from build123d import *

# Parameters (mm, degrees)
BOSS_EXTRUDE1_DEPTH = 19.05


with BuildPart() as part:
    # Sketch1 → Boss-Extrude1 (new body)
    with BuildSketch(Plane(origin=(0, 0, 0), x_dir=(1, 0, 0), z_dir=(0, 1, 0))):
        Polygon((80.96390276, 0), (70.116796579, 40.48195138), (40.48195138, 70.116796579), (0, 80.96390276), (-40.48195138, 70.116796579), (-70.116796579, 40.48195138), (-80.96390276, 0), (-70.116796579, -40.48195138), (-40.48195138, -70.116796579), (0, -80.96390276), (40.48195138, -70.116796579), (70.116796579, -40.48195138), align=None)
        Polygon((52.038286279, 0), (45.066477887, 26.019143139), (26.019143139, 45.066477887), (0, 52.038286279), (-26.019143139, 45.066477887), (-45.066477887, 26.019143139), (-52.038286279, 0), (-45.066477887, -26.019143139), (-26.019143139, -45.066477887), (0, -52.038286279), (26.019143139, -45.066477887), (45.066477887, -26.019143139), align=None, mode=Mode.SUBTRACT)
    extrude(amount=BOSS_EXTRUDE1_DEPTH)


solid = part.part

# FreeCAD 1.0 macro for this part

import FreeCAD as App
import Part
import Sketcher
from FreeCAD import Vector
Q = App.Units.Quantity

doc = App.newDocument("Part")
body = doc.addObject("PartDesign::Body", "Body")

# Sketch on XZ plane
sketch1 = body.newObject("Sketcher::SketchObject", "Sketch")
sketch1.AttachmentSupport = (doc.getObject("XZ_Plane"), [""])
sketch1.MapMode = "FlatFace"
sketch1.addGeometry(Part.LineSegment(Vector(81, 0, 0), Vector(70, -40, 0)), False)
sketch1.addGeometry(Part.LineSegment(Vector(70, -40, 0), Vector(40, -70, 0)), False)
sketch1.addGeometry(Part.LineSegment(Vector(40, -70, 0), Vector(0, -81, 0)), False)
sketch1.addGeometry(Part.LineSegment(Vector(0, -81, 0), Vector(-40, -70, 0)), False)
sketch1.addGeometry(Part.LineSegment(Vector(-40, -70, 0), Vector(-70, -40, 0)), False)
sketch1.addGeometry(Part.LineSegment(Vector(-70, -40, 0), Vector(-81, 0, 0)), False)
sketch1.addGeometry(Part.LineSegment(Vector(-81, 0, 0), Vector(-70, 40, 0)), False)
sketch1.addGeometry(Part.LineSegment(Vector(-70, 40, 0), Vector(-40, 70, 0)), False)
sketch1.addGeometry(Part.LineSegment(Vector(-40, 70, 0), Vector(0, 81, 0)), False)
sketch1.addGeometry(Part.LineSegment(Vector(0, 81, 0), Vector(40, 70, 0)), False)
sketch1.addGeometry(Part.LineSegment(Vector(40, 70, 0), Vector(70, 40, 0)), False)
sketch1.addGeometry(Part.LineSegment(Vector(70, 40, 0), Vector(81, 0, 0)), False)
sketch1.addGeometry(Part.LineSegment(Vector(45, -26, 0), Vector(52, 0, 0)), False)
sketch1.addGeometry(Part.LineSegment(Vector(52, 0, 0), Vector(45, 26, 0)), False)
sketch1.addGeometry(Part.LineSegment(Vector(45, 26, 0), Vector(26, 45, 0)), False)
sketch1.addGeometry(Part.LineSegment(Vector(26, 45, 0), Vector(0, 52, 0)), False)
sketch1.addGeometry(Part.LineSegment(Vector(0, 52, 0), Vector(-26, 45, 0)), False)
sketch1.addGeometry(Part.LineSegment(Vector(-26, 45, 0), Vector(-45, 26, 0)), False)
sketch1.addGeometry(Part.LineSegment(Vector(-45, 26, 0), Vector(-52, 0, 0)), False)
sketch1.addGeometry(Part.LineSegment(Vector(-52, 0, 0), Vector(-45, -26, 0)), False)
sketch1.addGeometry(Part.LineSegment(Vector(-45, -26, 0), Vector(-26, -45, 0)), False)
sketch1.addGeometry(Part.LineSegment(Vector(-26, -45, 0), Vector(0, -52, 0)), False)
sketch1.addGeometry(Part.LineSegment(Vector(0, -52, 0), Vector(26, -45, 0)), False)
sketch1.addGeometry(Part.LineSegment(Vector(26, -45, 0), Vector(45, -26, 0)), False)
sketch1.addConstraint(Sketcher.Constraint("Coincident", 0, 2, 1, 1))
sketch1.addConstraint(Sketcher.Constraint("Coincident", 1, 2, 2, 1))
sketch1.addConstraint(Sketcher.Constraint("Coincident", 2, 2, 3, 1))
sketch1.addConstraint(Sketcher.Constraint("Coincident", 3, 2, 4, 1))
sketch1.addConstraint(Sketcher.Constraint("Coincident", 4, 2, 5, 1))
sketch1.addConstraint(Sketcher.Constraint("Coincident", 5, 2, 6, 1))
sketch1.addConstraint(Sketcher.Constraint("Coincident", 6, 2, 7, 1))
sketch1.addConstraint(Sketcher.Constraint("Coincident", 7, 2, 8, 1))
sketch1.addConstraint(Sketcher.Constraint("Coincident", 8, 2, 9, 1))
sketch1.addConstraint(Sketcher.Constraint("Coincident", 9, 2, 10, 1))
sketch1.addConstraint(Sketcher.Constraint("Coincident", 10, 2, 11, 1))
sketch1.addConstraint(Sketcher.Constraint("Coincident", 11, 2, 0, 1))
sketch1.addConstraint(Sketcher.Constraint("Coincident", 12, 2, 13, 1))
sketch1.addConstraint(Sketcher.Constraint("Coincident", 13, 2, 14, 1))
sketch1.addConstraint(Sketcher.Constraint("Coincident", 14, 2, 15, 1))
sketch1.addConstraint(Sketcher.Constraint("Coincident", 15, 2, 16, 1))
sketch1.addConstraint(Sketcher.Constraint("Coincident", 16, 2, 17, 1))
sketch1.addConstraint(Sketcher.Constraint("Coincident", 17, 2, 18, 1))
sketch1.addConstraint(Sketcher.Constraint("Coincident", 18, 2, 19, 1))
sketch1.addConstraint(Sketcher.Constraint("Coincident", 19, 2, 20, 1))
sketch1.addConstraint(Sketcher.Constraint("Coincident", 20, 2, 21, 1))
sketch1.addConstraint(Sketcher.Constraint("Coincident", 21, 2, 22, 1))
sketch1.addConstraint(Sketcher.Constraint("Coincident", 22, 2, 23, 1))
sketch1.addConstraint(Sketcher.Constraint("Coincident", 23, 2, 12, 1))
sketch1.addConstraint(Sketcher.Constraint("Symmetric", 0, 2, 6, 2, -1, 1))
sketch1.addConstraint(Sketcher.Constraint("Symmetric", 1, 2, 7, 2, -1, 1))
sketch1.addConstraint(Sketcher.Constraint("Symmetric", 2, 2, 8, 2, -1, 1))
sketch1.addConstraint(Sketcher.Constraint("Symmetric", 3, 2, 9, 2, -1, 1))
sketch1.addConstraint(Sketcher.Constraint("Symmetric", 4, 2, 10, 2, -1, 1))
sketch1.addConstraint(Sketcher.Constraint("Symmetric", 5, 2, 11, 2, -1, 1))
sketch1.addConstraint(Sketcher.Constraint("Symmetric", 12, 2, 18, 2, -1, 1))
sketch1.addConstraint(Sketcher.Constraint("Symmetric", 13, 2, 19, 2, -1, 1))
sketch1.addConstraint(Sketcher.Constraint("Symmetric", 14, 2, 20, 2, -1, 1))
sketch1.addConstraint(Sketcher.Constraint("Symmetric", 15, 2, 21, 2, -1, 1))
sketch1.addConstraint(Sketcher.Constraint("Symmetric", 16, 2, 22, 2, -1, 1))
sketch1.addConstraint(Sketcher.Constraint("Symmetric", 17, 2, 23, 2, -1, 1))
sketch1.addConstraint(Sketcher.Constraint("Symmetric", 1, 2, 3, 2, -2))
sketch1.addConstraint(Sketcher.Constraint("Symmetric", 0, 2, 4, 2, -2))
sketch1.addConstraint(Sketcher.Constraint("Symmetric", 14, 2, 16, 2, -2))
sketch1.addConstraint(Sketcher.Constraint("Symmetric", 13, 2, 17, 2, -2))
sketch1.addConstraint(Sketcher.Constraint("PointOnObject", 2, 2, -2))
sketch1.addConstraint(Sketcher.Constraint("PointOnObject", 5, 2, -1))
sketch1.addConstraint(Sketcher.Constraint("PointOnObject", 12, 2, -1))
sketch1.addConstraint(Sketcher.Constraint("PointOnObject", 15, 2, -2))
sketch1.addConstraint(Sketcher.Constraint("Perpendicular", 0, 3))
sketch1.addConstraint(Sketcher.Constraint("Perpendicular", 1, 4))
sketch1.addConstraint(Sketcher.Constraint("Perpendicular", 9, 12))
sketch1.addConstraint(Sketcher.Constraint("Parallel", 10, 14))
sketch1.addConstraint(Sketcher.Constraint("Perpendicular", 12, 15))
sketch1.addConstraint(Sketcher.Constraint("Equal", 0, 1))
sketch1.addConstraint(Sketcher.Constraint("Equal", 1, 2))
sketch1.addConstraint(Sketcher.Constraint("Equal", 13, 14))
sketch1.addConstraint(Sketcher.Constraint("Equal", 14, 15))
sketch1.addConstraint(Sketcher.Constraint("Angle", 0, Q("-105 deg")))
sketch1.addConstraint(Sketcher.Constraint("Distance", 0, Q("1.65 in")))
sketch1.addConstraint(Sketcher.Constraint("Distance", 12, Q("26.936999 mm")))
pad1 = body.newObject("PartDesign::Pad", "Pad")
pad1.Profile = sketch1
pad1.Length = Q("0.75 in")
pad1.Reversed = True

doc.recompute()
